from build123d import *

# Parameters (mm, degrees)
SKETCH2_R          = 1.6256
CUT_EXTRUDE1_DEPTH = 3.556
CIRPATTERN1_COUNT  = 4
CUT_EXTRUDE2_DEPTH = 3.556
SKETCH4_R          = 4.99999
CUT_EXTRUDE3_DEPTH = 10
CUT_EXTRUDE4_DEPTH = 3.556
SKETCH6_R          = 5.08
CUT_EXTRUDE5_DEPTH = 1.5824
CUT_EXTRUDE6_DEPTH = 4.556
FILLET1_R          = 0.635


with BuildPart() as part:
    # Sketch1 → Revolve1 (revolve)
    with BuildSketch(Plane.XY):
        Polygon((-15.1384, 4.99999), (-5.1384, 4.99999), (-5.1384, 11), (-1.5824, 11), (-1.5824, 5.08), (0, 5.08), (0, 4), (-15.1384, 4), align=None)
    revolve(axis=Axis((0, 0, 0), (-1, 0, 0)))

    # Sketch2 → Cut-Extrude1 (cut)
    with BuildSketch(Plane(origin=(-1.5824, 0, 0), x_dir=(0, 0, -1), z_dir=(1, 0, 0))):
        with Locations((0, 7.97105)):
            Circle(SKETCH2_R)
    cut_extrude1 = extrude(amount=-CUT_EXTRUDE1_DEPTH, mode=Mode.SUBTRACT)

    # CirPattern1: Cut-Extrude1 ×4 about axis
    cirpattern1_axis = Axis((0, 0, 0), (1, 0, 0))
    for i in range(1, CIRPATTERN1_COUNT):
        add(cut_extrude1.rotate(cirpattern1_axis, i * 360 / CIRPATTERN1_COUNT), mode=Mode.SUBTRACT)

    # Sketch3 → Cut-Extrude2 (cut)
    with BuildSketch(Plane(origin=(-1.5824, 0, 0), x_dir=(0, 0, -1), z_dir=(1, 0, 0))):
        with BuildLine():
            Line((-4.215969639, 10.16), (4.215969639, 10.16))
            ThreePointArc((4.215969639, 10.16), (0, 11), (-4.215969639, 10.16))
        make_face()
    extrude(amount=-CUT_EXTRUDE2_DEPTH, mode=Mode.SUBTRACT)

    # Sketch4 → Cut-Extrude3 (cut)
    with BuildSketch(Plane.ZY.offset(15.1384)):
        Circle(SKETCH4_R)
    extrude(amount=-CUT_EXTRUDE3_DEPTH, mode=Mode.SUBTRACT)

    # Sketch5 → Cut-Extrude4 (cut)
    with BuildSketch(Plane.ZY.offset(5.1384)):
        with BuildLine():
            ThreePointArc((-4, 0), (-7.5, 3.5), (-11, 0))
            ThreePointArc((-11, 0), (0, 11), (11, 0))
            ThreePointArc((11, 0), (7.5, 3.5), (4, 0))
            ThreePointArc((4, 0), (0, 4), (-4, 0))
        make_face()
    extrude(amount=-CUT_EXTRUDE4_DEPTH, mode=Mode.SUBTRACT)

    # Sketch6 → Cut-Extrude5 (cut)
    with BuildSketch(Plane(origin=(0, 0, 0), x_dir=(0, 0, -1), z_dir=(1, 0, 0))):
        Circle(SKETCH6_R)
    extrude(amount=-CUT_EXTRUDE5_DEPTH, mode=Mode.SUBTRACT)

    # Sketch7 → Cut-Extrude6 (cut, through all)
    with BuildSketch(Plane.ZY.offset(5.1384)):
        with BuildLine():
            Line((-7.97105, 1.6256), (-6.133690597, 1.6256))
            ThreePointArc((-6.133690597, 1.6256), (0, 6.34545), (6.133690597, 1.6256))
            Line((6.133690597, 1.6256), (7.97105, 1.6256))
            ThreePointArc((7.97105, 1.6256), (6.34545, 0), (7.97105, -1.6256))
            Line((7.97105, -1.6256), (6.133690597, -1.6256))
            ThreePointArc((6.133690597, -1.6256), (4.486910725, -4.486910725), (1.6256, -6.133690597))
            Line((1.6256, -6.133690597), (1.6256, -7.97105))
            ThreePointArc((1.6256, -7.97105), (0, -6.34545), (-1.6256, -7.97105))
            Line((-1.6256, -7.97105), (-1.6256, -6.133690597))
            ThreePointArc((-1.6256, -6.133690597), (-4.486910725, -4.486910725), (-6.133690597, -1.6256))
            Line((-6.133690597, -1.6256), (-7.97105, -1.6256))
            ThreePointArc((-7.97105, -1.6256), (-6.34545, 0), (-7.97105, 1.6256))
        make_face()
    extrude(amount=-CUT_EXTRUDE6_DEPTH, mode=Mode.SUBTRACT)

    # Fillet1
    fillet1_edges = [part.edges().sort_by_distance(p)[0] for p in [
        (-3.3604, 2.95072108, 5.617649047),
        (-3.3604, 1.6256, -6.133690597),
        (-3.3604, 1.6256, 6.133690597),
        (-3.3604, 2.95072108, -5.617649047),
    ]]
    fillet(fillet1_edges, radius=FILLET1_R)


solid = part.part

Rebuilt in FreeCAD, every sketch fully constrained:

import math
import FreeCAD as App
import Part
import Sketcher
Q = App.Units.Quantity


def edges_at(feature, points):
    """Names of the edges that pass closest to the given points."""
    edges = feature.Shape.Edges
    near = lambda p: min(range(len(edges)), key=lambda i: edges[i].distToShape(Part.Vertex(*p))[0])
    return sorted({f"Edge{near(p) + 1}" for p in points})


def add_polygon(sketch, points):
    """Adds a closed chain of lines whose ends are joined by coincident constraints."""
    first, n = sketch.GeometryCount, len(points)
    for a, b in zip(points, points[1:] + points[:1]):
        sketch.addGeometry(Part.LineSegment(App.Vector(*a, 0), App.Vector(*b, 0)), False)
    for i in range(n):
        sketch.addConstraint(Sketcher.Constraint("Coincident", first + i, 2, first + (i + 1) % n, 1))

doc = App.newDocument("Part")
body = doc.addObject("PartDesign::Body", "Body")

sketch1 = body.newObject("Sketcher::SketchObject", "Sketch")
sketch1.AttachmentSupport = (doc.getObject("XY_Plane"), [""])
sketch1.MapMode = "FlatFace"
add_polygon(sketch1, [(-5.1, 5), (-15.1, 5), (-15.1, 4), (0, 4), (0, 5.1), (-1.6, 5.1), (-1.6, 11), (-5.1, 11)])
sketch1.addConstraint([
    Sketcher.Constraint("Horizontal", 0),
    Sketcher.Constraint("Vertical", 1),
    Sketcher.Constraint("Horizontal", 2),
    Sketcher.Constraint("Vertical", 3),
    Sketcher.Constraint("Horizontal", 4),
    Sketcher.Constraint("Vertical", 5),
    Sketcher.Constraint("Horizontal", 6),
    Sketcher.Constraint("Vertical", 7),
    Sketcher.Constraint("PointOnObject", 2, 2, -2),
    Sketcher.Constraint("DistanceX", 6, 2, 6, 1, Q("0.14 in")),
    Sketcher.Constraint("DistanceY", -1, 1, 3, 2, Q("0.2 in")),
    Sketcher.Constraint("DistanceX", 2, 1, 2, 2, Q("0.596 in")),
    Sketcher.Constraint("DistanceX", 0, 2, 0, 1, Q("10 mm")),
    Sketcher.Constraint("DistanceY", 3, 1, 3, 2, Q("1.08 mm")),
    Sketcher.Constraint("DistanceY", 5, 1, 5, 2, Q("5.92 mm")),
    Sketcher.Constraint("DistanceY", 1, 2, 1, 1, Q("0.99999 mm")),
])
revolution = body.newObject("PartDesign::Revolution", "Revolution")
revolution.Profile = sketch1
revolution.ReferenceAxis = (sketch1, ["H_Axis"])
revolution.Angle = 360

sketch2 = body.newObject("Sketcher::SketchObject", "Sketch001")
sketch2.AttachmentSupport = (doc.getObject("YZ_Plane"), [""])
sketch2.MapMode = "FlatFace"
sketch2.AttachmentOffset = App.Placement(App.Vector(0, 0, -1.5824), App.Rotation())
sketch2.addGeometry(Part.Circle(App.Vector(8, 0, 0), App.Vector(0, 0, 1), 1.6), False)
sketch2.addConstraint([
    Sketcher.Constraint("PointOnObject", 0, 3, -1),
    Sketcher.Constraint("Diameter", 0, Q("0.128 in")),
    Sketcher.Constraint("DistanceX", -1, 1, 0, 3, Q("7.97105 mm")),
])
pocket1 = body.newObject("PartDesign::Pocket", "Pocket")
pocket1.Profile = sketch2
pocket1.Length = Q("0.14 in")
doc.recompute()

polarpattern = body.newObject("PartDesign::PolarPattern", "PolarPattern")
polarpattern.Originals = [pocket1]
polarpattern.Axis = (doc.getObject("X_Axis"), [""])
polarpattern.Angle = 360
polarpattern.Occurrences = 4
body.Tip = polarpattern

sketch3 = body.newObject("Sketcher::SketchObject", "Sketch002")
sketch3.AttachmentSupport = (doc.getObject("YZ_Plane"), [""])
sketch3.MapMode = "FlatFace"
sketch3.AttachmentOffset = App.Placement(App.Vector(0, 0, -1.5824), App.Rotation())
sketch3.addGeometry([
    Part.LineSegment(App.Vector(10, 4, 0), App.Vector(10, -4, 0)),
    Part.ArcOfCircle(Part.Circle(App.Vector(0, 0, 0), App.Vector(0, 0, 1), 11), math.radians(-23), math.radians(23)),
], False)
sketch3.addConstraint([
    Sketcher.Constraint("Coincident", 0, 1, 1, 2),
    Sketcher.Constraint("Coincident", 1, 1, 0, 2),
    Sketcher.Constraint("Vertical", 0),
    Sketcher.Constraint("Coincident", 1, 3, -1, 1),
    Sketcher.Constraint("DistanceX", -1, 1, 0, 1, Q("0.4 in")),
    Sketcher.Constraint("Radius", 1, Q("11 mm")),
])
pocket2 = body.newObject("PartDesign::Pocket", "Pocket001")
pocket2.Profile = sketch3
pocket2.Length = Q("0.14 in")

sketch4 = body.newObject("Sketcher::SketchObject", "Sketch003")
sketch4.AttachmentSupport = (doc.getObject("YZ_Plane"), [""])
sketch4.MapMode = "FlatFace"
sketch4.AttachmentOffset = App.Placement(App.Vector(0, 0, -0.596 * 25.4), App.Rotation())
sketch4.addGeometry(Part.Circle(App.Vector(0, 0, 0), App.Vector(0, 0, 1), 5), False)
sketch4.addConstraint([
    Sketcher.Constraint("Coincident", 0, 3, -1, 1),
    Sketcher.Constraint("Diameter", 0, Q("0.3937 in")),
])
pocket3 = body.newObject("PartDesign::Pocket", "Pocket002")
pocket3.Profile = sketch4
pocket3.Length = 10
pocket3.Reversed = True

sketch5 = body.newObject("Sketcher::SketchObject", "Sketch004")
sketch5.AttachmentSupport = (doc.getObject("YZ_Plane"), [""])
sketch5.MapMode = "FlatFace"
sketch5.AttachmentOffset = App.Placement(App.Vector(0, 0, -5.1384), App.Rotation())
sketch5.addGeometry([
    Part.ArcOfCircle(Part.Circle(App.Vector(0, -7.5, 0), App.Vector(0, 0, 1), 3.5), math.radians(-90), math.radians(90)),
    Part.ArcOfCircle(Part.Circle(App.Vector(0, 0, 0), App.Vector(0, 0, 1), 4), math.radians(-90), math.radians(90)),
    Part.ArcOfCircle(Part.Circle(App.Vector(0, 7.5, 0), App.Vector(0, 0, 1), 3.5), math.radians(-90), math.radians(90)),
    Part.ArcOfCircle(Part.Circle(App.Vector(0, 0, 0), App.Vector(0, 0, 1), 11), math.radians(-90), math.radians(90)),
], False)
sketch5.addConstraint([
    Sketcher.Constraint("Tangent", 0, 2, 1, 1),
    Sketcher.Constraint("Tangent", 1, 2, 2, 1),
    Sketcher.Constraint("Tangent", 2, 2, 3, 2),
    Sketcher.Constraint("Tangent", 3, 1, 0, 1),
    Sketcher.Constraint("Coincident", 1, 3, -1, 1),
    Sketcher.Constraint("Coincident", 3, 3, -1, 1),
    Sketcher.Constraint("PointOnObject", 0, 3, -2),
    Sketcher.Constraint("PointOnObject", 2, 3, -2),
    Sketcher.Constraint("Radius", 0, Q("3.5 mm")),
    Sketcher.Constraint("Radius", 1, Q("4 mm")),
])
pocket4 = body.newObject("PartDesign::Pocket", "Pocket003")
pocket4.Profile = sketch5
pocket4.Length = Q("0.14 in")
pocket4.Reversed = True

sketch6 = body.newObject("Sketcher::SketchObject", "Sketch005")
sketch6.AttachmentSupport = (doc.getObject("YZ_Plane"), [""])
sketch6.MapMode = "FlatFace"
sketch6.addGeometry(Part.Circle(App.Vector(0, 0, 0), App.Vector(0, 0, 1), 5), False)
sketch6.addConstraint([
    Sketcher.Constraint("Coincident", 0, 3, -1, 1),
    Sketcher.Constraint("Diameter", 0, Q("0.4 in")),
])
pocket5 = body.newObject("PartDesign::Pocket", "Pocket004")
pocket5.Profile = sketch6
pocket5.Length = 1.5824

sketch7 = body.newObject("Sketcher::SketchObject", "Sketch006")
sketch7.AttachmentSupport = (doc.getObject("YZ_Plane"), [""])
sketch7.MapMode = "FlatFace"
sketch7.AttachmentOffset = App.Placement(App.Vector(0, 0, -5.1384), App.Rotation())
sketch7.addGeometry([
    Part.LineSegment(App.Vector(1.6, -6.1, 0), App.Vector(1.6, -8, 0)),
    Part.ArcOfCircle(Part.Circle(App.Vector(0, -8, 0), App.Vector(0, 0, 1), 1.6), math.radians(0), math.radians(180)),
    Part.LineSegment(App.Vector(-1.6, -8, 0), App.Vector(-1.6, -6.1, 0)),
    Part.ArcOfCircle(Part.Circle(App.Vector(0, 0, 0), App.Vector(0, 0, 1), 6.3), math.radians(-165), math.radians(-105)),
    Part.LineSegment(App.Vector(-6.1, -1.6, 0), App.Vector(-8, -1.6, 0)),
    Part.ArcOfCircle(Part.Circle(App.Vector(-8, 0, 0), App.Vector(0, 0, 1), 1.6), math.radians(-90), math.radians(90)),
    Part.LineSegment(App.Vector(-8, 1.6, 0), App.Vector(-6.1, 1.6, 0)),
    Part.ArcOfCircle(Part.Circle(App.Vector(0, 0, 0), App.Vector(0, 0, 1), 6.3), math.radians(105), math.radians(165)),
    Part.LineSegment(App.Vector(-1.6, 6.1, 0), App.Vector(-1.6, 8, 0)),
    Part.ArcOfCircle(Part.Circle(App.Vector(0, 8, 0), App.Vector(0, 0, 1), 1.6), math.radians(180), math.radians(360)),
    Part.LineSegment(App.Vector(1.6, 8, 0), App.Vector(1.6, 6.1, 0)),
    Part.ArcOfCircle(Part.Circle(App.Vector(0, 0, 0), App.Vector(0, 0, 1), 6.3), math.radians(-75), math.radians(75)),
], False)
sketch7.addConstraint([
    Sketcher.Constraint("Tangent", 0, 2, 1, 1),
    Sketcher.Constraint("Tangent", 1, 2, 2, 1),
    Sketcher.Constraint("Coincident", 2, 2, 3, 2),
    Sketcher.Constraint("Coincident", 3, 1, 4, 1),
    Sketcher.Constraint("Tangent", 4, 2, 5, 1),
    Sketcher.Constraint("Tangent", 5, 2, 6, 1),
    Sketcher.Constraint("Coincident", 6, 2, 7, 2),
    Sketcher.Constraint("Coincident", 7, 1, 8, 1),
    Sketcher.Constraint("Tangent", 8, 2, 9, 1),
    Sketcher.Constraint("Tangent", 9, 2, 10, 1),
    Sketcher.Constraint("Coincident", 10, 2, 11, 2),
    Sketcher.Constraint("Coincident", 11, 1, 0, 1),
    Sketcher.Constraint("Vertical", 0),
    Sketcher.Constraint("Vertical", 2),
    Sketcher.Constraint("Horizontal", 4),
    Sketcher.Constraint("Horizontal", 6),
    Sketcher.Constraint("Vertical", 8),
    Sketcher.Constraint("Vertical", 10),
    Sketcher.Constraint("Coincident", 3, 3, -1, 1),
    Sketcher.Constraint("Coincident", 7, 3, -1, 1),
    Sketcher.Constraint("Coincident", 11, 3, -1, 1),
    Sketcher.Constraint("Equal", 1, 5),
    Sketcher.Constraint("Equal", 3, 7),
    Sketcher.Constraint("Equal", 5, 9),
    Sketcher.Constraint("Equal", 7, 11),
    Sketcher.Constraint("Symmetric", 1, 3, 9, 3, -1, 1),
    Sketcher.Constraint("PointOnObject", 1, 3, -2),
    Sketcher.Constraint("PointOnObject", 5, 3, -1),
    Sketcher.Constraint("Equal", 6, 0),
    Sketcher.Constraint("Radius", 1, Q("0.064 in")),
    Sketcher.Constraint("Radius", 3, Q("6.34545 mm")),
    Sketcher.Constraint("DistanceX", 4, 2, 4, 1, Q("1.837359 mm")),
])
pocket6 = body.newObject("PartDesign::Pocket", "Pocket005")
pocket6.Profile = sketch7
pocket6.Type = "ThroughAll"
pocket6.Reversed = True
doc.recompute()

fillet = body.newObject("PartDesign::Fillet", "Fillet")
fillet.Base = (pocket6, edges_at(pocket6, [
    (-3.36, 2.951, 5.618),
    (-3.36, 1.626, -6.134),
    (-3.36, 1.626, 6.134),
    (-3.36, 2.951, -5.618),
]))
fillet.Radius = Q("0.025 in")

doc.recompute()
